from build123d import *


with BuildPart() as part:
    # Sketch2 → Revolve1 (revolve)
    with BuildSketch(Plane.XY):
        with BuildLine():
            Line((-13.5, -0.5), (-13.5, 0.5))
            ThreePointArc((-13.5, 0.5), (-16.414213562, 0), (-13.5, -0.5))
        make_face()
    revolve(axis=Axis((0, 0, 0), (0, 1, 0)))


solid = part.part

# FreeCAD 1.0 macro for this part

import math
import FreeCAD as App
import Part
import Sketcher
from FreeCAD import Vector
Q = App.Units.Quantity

doc = App.newDocument("Part")
body = doc.addObject("PartDesign::Body", "Body")

# Sketch on XY plane
sketch1 = body.newObject("Sketcher::SketchObject", "Sketch")
sketch1.AttachmentSupport = (doc.getObject("XY_Plane"), [""])
sketch1.MapMode = "FlatFace"
sketch1.addGeometry([
    Part.LineSegment(Vector(-13.5, -0.5, 0), Vector(-13.5, 0.5, 0)),
    Part.ArcOfCircle(Part.Circle(Vector(-14.9, 0, 0), Vector(0, 0, 1), 1.5), math.radians(19), math.radians(341)),
], False)
sketch1.addConstraint([
    Sketcher.Constraint("Coincident", 0, 1, 1, 2),
    Sketcher.Constraint("Coincident", 1, 1, 0, 2),
    Sketcher.Constraint("Vertical", 0),
    Sketcher.Constraint("PointOnObject", 1, 3, -1),
    Sketcher.Constraint("Radius", 1, Q("1.5 mm")),
    Sketcher.Constraint("DistanceY", 0, 1, 0, 2, Q("1 mm")),
    Sketcher.Constraint("DistanceX", 0, 1, -1, 1, Q("13.5 mm")),
])
revolution = body.newObject("PartDesign::Revolution", "Revolution")
revolution.Profile = sketch1
revolution.ReferenceAxis = (sketch1, ["V_Axis"])
revolution.Angle = 360

doc.recompute()
